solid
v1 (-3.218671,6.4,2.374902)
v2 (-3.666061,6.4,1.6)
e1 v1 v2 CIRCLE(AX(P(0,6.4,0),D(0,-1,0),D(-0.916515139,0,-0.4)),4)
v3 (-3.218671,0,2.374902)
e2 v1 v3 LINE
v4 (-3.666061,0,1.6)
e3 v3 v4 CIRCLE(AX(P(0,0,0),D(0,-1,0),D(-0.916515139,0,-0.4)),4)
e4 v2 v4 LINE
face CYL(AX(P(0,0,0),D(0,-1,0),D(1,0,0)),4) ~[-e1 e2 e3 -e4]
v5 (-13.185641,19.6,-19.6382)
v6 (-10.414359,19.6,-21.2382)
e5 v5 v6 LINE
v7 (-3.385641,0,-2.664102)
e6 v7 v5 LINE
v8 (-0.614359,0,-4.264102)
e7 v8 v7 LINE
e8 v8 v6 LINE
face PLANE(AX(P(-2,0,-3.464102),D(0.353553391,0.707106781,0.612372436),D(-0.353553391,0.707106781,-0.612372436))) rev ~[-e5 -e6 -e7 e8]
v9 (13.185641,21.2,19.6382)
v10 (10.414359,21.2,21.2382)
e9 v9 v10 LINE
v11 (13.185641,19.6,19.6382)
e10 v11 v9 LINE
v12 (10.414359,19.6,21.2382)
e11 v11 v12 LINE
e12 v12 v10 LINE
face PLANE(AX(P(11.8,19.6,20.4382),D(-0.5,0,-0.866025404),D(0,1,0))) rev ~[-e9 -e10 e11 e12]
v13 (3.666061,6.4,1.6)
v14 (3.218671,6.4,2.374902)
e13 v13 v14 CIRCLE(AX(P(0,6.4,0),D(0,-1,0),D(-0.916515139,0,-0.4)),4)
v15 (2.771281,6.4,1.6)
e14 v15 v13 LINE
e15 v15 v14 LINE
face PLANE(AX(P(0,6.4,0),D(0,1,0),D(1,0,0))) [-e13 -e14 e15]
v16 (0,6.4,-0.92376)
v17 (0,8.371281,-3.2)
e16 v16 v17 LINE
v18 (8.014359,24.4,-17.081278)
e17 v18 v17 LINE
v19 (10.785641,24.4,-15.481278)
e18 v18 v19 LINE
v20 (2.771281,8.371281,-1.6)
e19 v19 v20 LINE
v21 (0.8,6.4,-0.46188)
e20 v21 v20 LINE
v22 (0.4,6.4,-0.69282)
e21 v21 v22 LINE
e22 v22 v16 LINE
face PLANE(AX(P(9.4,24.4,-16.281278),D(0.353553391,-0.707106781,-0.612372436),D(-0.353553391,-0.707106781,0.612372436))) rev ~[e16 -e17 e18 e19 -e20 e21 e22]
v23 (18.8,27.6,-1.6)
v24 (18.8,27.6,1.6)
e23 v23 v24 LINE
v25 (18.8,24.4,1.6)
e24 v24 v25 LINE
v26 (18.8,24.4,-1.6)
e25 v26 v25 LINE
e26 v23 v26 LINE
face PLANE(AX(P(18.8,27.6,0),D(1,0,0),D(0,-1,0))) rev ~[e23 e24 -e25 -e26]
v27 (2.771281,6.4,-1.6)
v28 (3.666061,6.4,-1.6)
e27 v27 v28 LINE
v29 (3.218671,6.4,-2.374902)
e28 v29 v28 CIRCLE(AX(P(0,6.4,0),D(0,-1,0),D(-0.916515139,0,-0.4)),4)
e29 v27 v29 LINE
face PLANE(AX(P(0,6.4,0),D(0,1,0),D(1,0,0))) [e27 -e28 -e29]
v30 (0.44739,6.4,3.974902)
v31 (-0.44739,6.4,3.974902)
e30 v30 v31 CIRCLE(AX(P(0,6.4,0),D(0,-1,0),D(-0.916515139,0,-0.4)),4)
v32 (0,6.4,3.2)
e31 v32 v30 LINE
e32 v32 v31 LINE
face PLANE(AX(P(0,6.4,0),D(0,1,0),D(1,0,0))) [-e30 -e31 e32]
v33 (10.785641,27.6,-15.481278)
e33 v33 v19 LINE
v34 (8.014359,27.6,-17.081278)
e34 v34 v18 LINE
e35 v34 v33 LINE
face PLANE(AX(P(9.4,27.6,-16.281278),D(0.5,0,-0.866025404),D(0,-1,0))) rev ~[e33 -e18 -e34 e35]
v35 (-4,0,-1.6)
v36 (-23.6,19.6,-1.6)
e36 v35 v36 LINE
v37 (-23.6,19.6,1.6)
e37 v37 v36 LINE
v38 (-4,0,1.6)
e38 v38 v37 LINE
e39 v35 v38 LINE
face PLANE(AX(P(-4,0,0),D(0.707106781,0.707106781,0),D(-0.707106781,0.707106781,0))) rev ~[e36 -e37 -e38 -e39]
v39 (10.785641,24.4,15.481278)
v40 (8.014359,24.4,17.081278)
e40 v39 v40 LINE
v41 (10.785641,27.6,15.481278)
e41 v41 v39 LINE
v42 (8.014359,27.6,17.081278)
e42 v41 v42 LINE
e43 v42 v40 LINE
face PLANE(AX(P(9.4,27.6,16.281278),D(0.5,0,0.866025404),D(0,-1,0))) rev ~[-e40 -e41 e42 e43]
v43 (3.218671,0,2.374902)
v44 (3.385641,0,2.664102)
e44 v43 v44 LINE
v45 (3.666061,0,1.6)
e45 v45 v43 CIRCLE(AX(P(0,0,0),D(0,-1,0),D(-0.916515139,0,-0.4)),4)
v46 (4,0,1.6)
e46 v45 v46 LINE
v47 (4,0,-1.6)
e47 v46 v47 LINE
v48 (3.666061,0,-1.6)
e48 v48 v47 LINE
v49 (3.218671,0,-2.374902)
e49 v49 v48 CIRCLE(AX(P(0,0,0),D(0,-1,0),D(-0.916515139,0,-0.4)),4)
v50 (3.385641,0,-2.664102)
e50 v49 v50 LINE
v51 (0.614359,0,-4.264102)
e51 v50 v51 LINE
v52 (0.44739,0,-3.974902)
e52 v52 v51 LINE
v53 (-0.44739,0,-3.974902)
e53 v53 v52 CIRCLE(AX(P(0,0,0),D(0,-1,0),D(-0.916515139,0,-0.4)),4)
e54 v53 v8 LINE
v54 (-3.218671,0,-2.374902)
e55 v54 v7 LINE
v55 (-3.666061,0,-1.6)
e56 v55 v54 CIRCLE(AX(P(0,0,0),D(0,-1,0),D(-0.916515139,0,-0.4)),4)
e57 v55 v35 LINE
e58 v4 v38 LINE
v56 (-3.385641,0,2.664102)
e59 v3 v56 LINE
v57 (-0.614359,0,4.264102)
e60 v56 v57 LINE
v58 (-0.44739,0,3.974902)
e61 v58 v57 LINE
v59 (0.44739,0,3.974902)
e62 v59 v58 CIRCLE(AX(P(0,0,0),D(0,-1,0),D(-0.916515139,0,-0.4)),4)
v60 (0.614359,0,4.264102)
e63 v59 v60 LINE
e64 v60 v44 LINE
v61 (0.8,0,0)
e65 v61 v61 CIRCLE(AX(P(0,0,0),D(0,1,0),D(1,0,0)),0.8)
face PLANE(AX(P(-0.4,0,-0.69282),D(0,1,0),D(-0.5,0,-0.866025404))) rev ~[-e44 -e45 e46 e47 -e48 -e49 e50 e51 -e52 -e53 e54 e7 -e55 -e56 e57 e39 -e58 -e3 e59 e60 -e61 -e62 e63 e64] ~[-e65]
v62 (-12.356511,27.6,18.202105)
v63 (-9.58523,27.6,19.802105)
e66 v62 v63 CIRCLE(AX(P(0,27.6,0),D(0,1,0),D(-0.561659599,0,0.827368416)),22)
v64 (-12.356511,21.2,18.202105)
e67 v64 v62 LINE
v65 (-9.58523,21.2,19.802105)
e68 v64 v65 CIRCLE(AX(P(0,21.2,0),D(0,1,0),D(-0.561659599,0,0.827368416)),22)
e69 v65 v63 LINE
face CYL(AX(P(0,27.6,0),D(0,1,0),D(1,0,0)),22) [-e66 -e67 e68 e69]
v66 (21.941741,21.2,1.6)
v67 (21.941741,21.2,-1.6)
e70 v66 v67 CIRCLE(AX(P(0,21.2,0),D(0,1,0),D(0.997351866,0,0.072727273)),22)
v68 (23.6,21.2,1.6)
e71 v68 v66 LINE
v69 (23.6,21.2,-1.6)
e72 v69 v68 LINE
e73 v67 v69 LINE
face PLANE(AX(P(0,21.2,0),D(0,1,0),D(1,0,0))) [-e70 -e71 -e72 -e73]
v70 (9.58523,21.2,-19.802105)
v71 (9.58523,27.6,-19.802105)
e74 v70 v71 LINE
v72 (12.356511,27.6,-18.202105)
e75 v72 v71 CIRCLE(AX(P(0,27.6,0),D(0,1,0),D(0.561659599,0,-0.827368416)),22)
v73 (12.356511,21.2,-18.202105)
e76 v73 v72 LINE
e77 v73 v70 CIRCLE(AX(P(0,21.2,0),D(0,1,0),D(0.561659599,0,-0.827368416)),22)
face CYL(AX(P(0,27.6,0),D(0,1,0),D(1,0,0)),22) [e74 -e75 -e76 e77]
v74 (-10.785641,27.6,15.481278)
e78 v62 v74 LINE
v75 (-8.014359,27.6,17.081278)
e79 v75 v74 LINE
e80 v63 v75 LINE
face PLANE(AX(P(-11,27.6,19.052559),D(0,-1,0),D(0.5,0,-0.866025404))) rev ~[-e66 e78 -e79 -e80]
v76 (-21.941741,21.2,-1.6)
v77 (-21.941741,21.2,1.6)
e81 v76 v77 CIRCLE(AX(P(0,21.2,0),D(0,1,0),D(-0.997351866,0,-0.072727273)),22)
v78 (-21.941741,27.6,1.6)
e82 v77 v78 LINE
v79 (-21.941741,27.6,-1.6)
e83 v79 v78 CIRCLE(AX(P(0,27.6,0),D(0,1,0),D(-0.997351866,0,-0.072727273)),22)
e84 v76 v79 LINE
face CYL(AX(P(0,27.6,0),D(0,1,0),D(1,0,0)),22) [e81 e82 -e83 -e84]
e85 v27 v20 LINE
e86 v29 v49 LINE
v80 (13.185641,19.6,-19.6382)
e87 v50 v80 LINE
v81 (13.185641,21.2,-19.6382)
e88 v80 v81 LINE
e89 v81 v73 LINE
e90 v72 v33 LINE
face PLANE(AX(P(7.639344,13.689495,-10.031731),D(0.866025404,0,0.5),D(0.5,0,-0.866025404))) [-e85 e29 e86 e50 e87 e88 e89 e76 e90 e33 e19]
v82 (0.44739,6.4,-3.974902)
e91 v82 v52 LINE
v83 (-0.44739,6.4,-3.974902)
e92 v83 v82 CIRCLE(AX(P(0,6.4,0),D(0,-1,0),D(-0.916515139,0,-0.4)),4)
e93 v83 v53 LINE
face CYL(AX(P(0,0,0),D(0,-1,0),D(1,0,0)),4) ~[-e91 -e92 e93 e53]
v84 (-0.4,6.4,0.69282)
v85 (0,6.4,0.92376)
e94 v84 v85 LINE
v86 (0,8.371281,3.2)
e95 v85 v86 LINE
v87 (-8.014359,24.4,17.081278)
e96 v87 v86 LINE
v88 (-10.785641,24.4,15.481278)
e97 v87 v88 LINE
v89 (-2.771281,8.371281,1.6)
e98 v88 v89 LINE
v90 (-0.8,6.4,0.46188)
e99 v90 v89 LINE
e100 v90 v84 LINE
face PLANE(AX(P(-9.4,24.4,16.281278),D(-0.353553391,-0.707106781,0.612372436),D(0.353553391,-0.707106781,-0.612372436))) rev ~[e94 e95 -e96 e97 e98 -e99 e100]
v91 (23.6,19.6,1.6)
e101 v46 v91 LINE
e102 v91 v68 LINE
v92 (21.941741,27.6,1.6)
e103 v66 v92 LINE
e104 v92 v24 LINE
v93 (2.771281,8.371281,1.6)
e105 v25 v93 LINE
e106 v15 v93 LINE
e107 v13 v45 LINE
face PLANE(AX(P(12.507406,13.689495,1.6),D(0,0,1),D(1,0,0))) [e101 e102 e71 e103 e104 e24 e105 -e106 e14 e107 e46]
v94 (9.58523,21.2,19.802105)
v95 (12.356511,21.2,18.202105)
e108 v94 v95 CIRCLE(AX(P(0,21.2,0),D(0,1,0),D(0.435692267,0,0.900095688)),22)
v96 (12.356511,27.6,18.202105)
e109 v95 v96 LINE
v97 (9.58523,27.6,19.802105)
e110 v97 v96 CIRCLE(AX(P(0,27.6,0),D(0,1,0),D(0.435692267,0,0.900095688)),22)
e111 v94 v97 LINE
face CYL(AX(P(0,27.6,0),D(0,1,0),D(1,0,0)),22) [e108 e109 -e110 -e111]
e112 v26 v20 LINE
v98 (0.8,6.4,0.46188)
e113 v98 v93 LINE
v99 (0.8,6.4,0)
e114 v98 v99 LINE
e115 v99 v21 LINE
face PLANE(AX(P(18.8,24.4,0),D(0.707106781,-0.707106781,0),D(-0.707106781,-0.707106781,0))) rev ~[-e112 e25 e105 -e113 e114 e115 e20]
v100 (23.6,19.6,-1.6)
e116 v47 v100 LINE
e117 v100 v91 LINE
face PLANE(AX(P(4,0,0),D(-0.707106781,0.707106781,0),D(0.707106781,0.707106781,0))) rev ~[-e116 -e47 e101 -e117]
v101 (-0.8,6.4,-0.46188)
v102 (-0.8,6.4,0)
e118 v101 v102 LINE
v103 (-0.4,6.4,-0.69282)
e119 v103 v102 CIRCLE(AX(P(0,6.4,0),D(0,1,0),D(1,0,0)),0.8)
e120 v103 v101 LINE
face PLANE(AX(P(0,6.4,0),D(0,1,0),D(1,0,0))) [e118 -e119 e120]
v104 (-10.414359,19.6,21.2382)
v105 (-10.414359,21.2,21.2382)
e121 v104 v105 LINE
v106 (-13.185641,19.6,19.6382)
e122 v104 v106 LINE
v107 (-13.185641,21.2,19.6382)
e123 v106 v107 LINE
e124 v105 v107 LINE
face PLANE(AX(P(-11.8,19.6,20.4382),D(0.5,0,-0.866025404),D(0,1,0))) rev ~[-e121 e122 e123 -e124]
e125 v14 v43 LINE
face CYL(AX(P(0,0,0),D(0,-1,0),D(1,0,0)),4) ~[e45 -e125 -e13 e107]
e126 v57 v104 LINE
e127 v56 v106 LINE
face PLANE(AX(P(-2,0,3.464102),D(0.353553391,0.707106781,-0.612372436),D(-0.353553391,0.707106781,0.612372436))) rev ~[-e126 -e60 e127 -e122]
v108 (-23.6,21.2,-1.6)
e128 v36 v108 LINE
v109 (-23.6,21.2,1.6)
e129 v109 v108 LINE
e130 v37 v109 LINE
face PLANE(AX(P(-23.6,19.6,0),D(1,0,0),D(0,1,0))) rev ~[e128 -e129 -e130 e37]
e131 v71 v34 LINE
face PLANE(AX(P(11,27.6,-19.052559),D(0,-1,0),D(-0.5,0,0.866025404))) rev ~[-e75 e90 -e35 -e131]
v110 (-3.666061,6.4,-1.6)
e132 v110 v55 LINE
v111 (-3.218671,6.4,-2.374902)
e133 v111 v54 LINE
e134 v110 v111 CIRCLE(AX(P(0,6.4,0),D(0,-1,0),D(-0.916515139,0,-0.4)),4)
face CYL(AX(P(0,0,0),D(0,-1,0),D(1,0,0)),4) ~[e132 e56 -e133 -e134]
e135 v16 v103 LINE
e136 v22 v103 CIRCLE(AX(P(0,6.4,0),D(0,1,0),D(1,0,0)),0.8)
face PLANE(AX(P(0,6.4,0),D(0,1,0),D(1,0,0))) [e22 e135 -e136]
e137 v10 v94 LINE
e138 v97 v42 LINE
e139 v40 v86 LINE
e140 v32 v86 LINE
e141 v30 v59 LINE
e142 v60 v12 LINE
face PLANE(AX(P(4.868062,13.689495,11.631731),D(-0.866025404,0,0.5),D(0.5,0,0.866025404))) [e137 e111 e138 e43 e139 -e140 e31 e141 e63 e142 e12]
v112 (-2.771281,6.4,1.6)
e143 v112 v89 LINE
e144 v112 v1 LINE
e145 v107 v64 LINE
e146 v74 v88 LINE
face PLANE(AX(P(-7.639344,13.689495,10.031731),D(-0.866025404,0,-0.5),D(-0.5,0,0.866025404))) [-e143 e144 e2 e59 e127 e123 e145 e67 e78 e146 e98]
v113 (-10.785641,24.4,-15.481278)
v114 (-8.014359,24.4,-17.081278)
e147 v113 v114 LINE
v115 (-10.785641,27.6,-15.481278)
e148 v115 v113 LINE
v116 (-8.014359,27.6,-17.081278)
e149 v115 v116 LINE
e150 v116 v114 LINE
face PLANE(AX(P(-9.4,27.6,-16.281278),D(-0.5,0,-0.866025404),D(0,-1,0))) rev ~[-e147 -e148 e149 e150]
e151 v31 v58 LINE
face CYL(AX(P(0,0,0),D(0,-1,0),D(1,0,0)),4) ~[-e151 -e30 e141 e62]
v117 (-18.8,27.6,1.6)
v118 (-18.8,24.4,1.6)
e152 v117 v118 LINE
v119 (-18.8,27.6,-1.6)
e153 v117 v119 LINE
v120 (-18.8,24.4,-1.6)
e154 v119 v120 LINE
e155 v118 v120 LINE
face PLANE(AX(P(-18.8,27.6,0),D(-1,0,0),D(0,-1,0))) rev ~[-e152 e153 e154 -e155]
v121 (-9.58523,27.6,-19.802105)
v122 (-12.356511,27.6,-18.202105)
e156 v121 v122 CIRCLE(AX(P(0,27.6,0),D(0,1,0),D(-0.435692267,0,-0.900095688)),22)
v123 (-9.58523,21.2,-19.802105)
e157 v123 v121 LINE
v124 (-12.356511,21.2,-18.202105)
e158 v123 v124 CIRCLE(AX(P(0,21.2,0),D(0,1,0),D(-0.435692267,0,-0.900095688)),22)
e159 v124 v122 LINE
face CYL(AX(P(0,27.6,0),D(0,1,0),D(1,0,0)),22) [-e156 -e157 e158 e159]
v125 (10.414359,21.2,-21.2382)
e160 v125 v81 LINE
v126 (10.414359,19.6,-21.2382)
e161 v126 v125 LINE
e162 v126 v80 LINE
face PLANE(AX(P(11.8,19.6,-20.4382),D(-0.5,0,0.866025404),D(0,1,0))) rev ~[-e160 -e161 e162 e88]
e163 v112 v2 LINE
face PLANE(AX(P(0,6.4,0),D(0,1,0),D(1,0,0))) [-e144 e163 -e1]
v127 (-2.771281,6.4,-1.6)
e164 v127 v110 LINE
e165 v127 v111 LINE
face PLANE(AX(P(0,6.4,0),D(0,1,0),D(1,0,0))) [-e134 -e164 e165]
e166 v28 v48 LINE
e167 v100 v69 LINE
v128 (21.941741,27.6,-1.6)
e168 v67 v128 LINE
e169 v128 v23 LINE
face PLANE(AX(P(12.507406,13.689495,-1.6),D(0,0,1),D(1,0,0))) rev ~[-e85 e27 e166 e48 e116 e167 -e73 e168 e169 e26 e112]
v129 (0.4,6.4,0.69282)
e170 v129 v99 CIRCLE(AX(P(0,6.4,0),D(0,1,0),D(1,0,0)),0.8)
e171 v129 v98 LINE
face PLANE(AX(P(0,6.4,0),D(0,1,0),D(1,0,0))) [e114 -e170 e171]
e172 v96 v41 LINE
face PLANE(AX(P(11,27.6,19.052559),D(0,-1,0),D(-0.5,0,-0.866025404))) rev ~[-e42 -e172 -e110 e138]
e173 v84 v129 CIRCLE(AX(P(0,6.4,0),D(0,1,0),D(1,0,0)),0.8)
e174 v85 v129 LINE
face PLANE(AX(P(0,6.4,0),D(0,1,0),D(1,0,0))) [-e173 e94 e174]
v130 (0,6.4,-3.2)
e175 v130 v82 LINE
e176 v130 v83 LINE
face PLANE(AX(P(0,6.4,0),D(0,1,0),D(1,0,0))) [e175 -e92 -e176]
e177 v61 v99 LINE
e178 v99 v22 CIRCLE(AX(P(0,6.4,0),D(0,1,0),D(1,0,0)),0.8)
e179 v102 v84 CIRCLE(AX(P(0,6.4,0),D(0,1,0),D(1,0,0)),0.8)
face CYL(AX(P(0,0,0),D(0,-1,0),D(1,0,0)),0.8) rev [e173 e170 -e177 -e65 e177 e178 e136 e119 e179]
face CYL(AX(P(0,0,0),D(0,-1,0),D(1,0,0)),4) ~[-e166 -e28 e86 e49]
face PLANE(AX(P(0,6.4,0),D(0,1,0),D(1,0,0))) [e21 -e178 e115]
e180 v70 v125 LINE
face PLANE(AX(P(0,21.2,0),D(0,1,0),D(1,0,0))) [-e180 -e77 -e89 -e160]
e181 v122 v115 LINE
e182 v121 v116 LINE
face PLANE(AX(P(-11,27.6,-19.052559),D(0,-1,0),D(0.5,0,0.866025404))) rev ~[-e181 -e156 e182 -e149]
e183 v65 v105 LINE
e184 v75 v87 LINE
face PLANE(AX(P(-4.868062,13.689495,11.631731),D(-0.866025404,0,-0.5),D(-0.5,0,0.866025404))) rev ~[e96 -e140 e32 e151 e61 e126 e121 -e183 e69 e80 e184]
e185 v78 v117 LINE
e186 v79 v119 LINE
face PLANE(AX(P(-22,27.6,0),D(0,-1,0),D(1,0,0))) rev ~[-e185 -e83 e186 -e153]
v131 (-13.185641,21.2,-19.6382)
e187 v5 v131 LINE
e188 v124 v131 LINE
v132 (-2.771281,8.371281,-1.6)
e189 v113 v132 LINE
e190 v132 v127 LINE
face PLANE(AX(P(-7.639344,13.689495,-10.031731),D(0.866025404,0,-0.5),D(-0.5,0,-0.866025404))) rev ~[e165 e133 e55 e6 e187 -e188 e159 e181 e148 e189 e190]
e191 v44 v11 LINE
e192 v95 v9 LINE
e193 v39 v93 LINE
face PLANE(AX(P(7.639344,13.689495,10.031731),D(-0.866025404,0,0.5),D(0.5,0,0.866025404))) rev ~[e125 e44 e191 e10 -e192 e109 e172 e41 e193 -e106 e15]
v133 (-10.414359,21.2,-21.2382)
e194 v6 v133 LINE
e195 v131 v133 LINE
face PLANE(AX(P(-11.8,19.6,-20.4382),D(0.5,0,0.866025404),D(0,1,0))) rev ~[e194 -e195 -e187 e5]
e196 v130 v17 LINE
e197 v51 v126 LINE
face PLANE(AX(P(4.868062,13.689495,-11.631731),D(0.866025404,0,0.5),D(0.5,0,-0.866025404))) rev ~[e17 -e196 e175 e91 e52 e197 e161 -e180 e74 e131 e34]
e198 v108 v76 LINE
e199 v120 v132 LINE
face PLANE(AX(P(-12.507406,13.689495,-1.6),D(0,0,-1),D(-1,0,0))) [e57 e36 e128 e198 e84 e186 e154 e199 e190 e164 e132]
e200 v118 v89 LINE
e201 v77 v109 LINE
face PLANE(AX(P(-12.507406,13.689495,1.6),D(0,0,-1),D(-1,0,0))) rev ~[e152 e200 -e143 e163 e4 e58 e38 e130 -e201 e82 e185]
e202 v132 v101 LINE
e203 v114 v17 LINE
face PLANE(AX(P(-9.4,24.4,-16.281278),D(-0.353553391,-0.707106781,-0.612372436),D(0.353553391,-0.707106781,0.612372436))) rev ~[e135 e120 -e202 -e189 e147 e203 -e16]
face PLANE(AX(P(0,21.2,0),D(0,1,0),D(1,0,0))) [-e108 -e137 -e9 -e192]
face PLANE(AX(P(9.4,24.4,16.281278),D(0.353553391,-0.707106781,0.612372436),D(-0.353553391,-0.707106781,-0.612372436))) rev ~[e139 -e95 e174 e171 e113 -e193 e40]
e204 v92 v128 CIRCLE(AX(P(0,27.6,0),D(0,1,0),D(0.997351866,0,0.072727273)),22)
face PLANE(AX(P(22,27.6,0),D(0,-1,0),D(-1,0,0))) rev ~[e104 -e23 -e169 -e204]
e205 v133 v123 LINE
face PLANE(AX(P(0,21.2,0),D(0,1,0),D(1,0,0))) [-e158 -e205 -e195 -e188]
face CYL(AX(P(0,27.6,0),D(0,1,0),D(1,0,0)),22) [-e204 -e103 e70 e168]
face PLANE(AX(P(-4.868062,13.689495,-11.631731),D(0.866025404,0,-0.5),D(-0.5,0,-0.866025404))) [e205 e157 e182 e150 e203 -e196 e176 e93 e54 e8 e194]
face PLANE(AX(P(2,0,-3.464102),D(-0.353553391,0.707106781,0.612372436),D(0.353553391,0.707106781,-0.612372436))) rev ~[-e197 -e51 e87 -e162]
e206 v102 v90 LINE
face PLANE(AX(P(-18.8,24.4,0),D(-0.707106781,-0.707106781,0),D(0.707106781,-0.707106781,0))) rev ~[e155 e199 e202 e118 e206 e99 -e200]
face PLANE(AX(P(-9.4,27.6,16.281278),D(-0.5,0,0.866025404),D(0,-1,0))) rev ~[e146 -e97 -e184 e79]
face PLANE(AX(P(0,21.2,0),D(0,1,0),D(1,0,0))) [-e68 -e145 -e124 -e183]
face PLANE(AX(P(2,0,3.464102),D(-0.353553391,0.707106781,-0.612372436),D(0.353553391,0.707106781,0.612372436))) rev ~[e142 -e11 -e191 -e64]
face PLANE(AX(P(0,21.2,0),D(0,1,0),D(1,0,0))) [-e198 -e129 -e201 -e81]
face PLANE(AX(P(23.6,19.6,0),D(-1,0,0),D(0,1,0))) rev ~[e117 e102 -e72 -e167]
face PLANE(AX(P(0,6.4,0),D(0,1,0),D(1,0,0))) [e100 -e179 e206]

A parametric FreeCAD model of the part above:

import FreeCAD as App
import Part
import Sketcher

V = App.Vector
Q = App.Units.Quantity


def add_polygon(sketch, points):
    """Adds a closed chain of lines whose ends are joined by coincident constraints."""
    first, n = sketch.GeometryCount, len(points)
    for a, b in zip(points, points[1:] + points[:1]):
        sketch.addGeometry(Part.LineSegment(App.Vector(*a, 0), App.Vector(*b, 0)), False)
    for i in range(n):
        sketch.addConstraint(Sketcher.Constraint("Coincident", first + i, 2, first + (i + 1) % n, 1))

doc = App.newDocument("Part")
body = doc.addObject("PartDesign::Body", "Body")

# Sketch on XZ plane
sketch1 = doc.addObject("Sketcher::SketchObject", "Sketch")
body.addObject(sketch1)
sketch1.AttachmentSupport = (doc.XZ_Plane, [""])
sketch1.MapMode = "FlatFace"
sketch1.addGeometry([
    Part.Circle(V(0, 0, 0), V(0, 0, 1), 4),
    Part.Circle(V(0, 0, 0), V(0, 0, 1), 0.8),
], False)
sketch1.addConstraint([
    Sketcher.Constraint("Coincident", 0, 3, -1, 1),
    Sketcher.Constraint("Coincident", 1, 3, -1, 1),
    Sketcher.Constraint("Diameter", 0, Q("8 mm")),
    Sketcher.Constraint("Diameter", 1, Q("1.6 mm")),
])
pad1 = doc.addObject("PartDesign::Pad", "Pad")
body.addObject(pad1)
pad1.Profile = sketch1
pad1.Length = 6.4
pad1.Reversed = True

# Sketch on XY plane
sketch2 = doc.addObject("Sketcher::SketchObject", "Sketch001")
body.addObject(sketch2)
sketch2.AttachmentSupport = (doc.XY_Plane, [""])
sketch2.MapMode = "FlatFace"
add_polygon(sketch2, [(-23.6, 19.6), (-4, 0), (-0.8, 0), (-0.8, 6.4), (-18.8, 24.4), (-18.8, 27.6), (-22, 27.6), (-22, 21.2), (-23.6, 21.2)])  # lines 0-8
sketch2.addConstraint([
    Sketcher.Constraint("Horizontal", 1),
    Sketcher.Constraint("Vertical", 2),
    Sketcher.Constraint("Vertical", 4),
    Sketcher.Constraint("Horizontal", 5),
    Sketcher.Constraint("Vertical", 6),
    Sketcher.Constraint("Horizontal", 7),
    Sketcher.Constraint("Vertical", 8),
    Sketcher.Constraint("PointOnObject", 0, 2, -1),
    Sketcher.Constraint("Parallel", 0, 3),
    Sketcher.Constraint("Equal", 1, 5),
    Sketcher.Constraint("Equal", 5, 4),
    Sketcher.Constraint("Equal", 2, 6),
    Sketcher.Constraint("Equal", 7, 8),
    Sketcher.Constraint("Angle", 0, Q("-45 deg")),
    Sketcher.Constraint("DistanceX", 1, 1, 1, 2, Q("3.2 mm")),
    Sketcher.Constraint("DistanceY", 2, 1, 2, 2, Q("6.4 mm")),
    Sketcher.Constraint("DistanceX", 0, 2, -1, 1, Q("4 mm")),
    Sketcher.Constraint("DistanceX", 5, 2, -1, 1, Q("22 mm")),
])
pad2 = doc.addObject("PartDesign::Pad", "Pad001")
body.addObject(pad2)
pad2.Profile = sketch2
pad2.Length = 3.2
pad2.Midplane = True
doc.recompute()

polarpattern = doc.addObject("PartDesign::PolarPattern", "PolarPattern")
body.addObject(polarpattern)
polarpattern.Originals = [pad2]
polarpattern.Axis = (doc.Y_Axis, [""])
polarpattern.Angle = 360
polarpattern.Occurrences = 6
body.Tip = polarpattern

# Sketch on XZ plane
sketch3 = doc.addObject("Sketcher::SketchObject", "Sketch002")
body.addObject(sketch3)
sketch3.AttachmentSupport = (doc.XZ_Plane, [""])
sketch3.MapMode = "FlatFace"
sketch3.AttachmentOffset = App.Placement(V(0, 0, -27.6), App.Rotation())
sketch3.addGeometry([
    Part.Circle(V(0, 0, 0), V(0, 0, 1), 23.654175),
    Part.Circle(V(0, 0, 0), V(0, 0, 1), 22),
], False)
sketch3.addConstraint([
    Sketcher.Constraint("Coincident", 0, 3, -1, 1),
    Sketcher.Constraint("Coincident", 1, 3, -1, 1),
    Sketcher.Constraint("Diameter", 1, Q("44 mm")),
    Sketcher.Constraint("Diameter", 0, Q("47.30835 mm")),
])
pocket1 = doc.addObject("PartDesign::Pocket", "Pocket")
body.addObject(pocket1)
pocket1.Profile = sketch3
pocket1.Length = 6.4
pocket1.Reversed = True

doc.recompute()
